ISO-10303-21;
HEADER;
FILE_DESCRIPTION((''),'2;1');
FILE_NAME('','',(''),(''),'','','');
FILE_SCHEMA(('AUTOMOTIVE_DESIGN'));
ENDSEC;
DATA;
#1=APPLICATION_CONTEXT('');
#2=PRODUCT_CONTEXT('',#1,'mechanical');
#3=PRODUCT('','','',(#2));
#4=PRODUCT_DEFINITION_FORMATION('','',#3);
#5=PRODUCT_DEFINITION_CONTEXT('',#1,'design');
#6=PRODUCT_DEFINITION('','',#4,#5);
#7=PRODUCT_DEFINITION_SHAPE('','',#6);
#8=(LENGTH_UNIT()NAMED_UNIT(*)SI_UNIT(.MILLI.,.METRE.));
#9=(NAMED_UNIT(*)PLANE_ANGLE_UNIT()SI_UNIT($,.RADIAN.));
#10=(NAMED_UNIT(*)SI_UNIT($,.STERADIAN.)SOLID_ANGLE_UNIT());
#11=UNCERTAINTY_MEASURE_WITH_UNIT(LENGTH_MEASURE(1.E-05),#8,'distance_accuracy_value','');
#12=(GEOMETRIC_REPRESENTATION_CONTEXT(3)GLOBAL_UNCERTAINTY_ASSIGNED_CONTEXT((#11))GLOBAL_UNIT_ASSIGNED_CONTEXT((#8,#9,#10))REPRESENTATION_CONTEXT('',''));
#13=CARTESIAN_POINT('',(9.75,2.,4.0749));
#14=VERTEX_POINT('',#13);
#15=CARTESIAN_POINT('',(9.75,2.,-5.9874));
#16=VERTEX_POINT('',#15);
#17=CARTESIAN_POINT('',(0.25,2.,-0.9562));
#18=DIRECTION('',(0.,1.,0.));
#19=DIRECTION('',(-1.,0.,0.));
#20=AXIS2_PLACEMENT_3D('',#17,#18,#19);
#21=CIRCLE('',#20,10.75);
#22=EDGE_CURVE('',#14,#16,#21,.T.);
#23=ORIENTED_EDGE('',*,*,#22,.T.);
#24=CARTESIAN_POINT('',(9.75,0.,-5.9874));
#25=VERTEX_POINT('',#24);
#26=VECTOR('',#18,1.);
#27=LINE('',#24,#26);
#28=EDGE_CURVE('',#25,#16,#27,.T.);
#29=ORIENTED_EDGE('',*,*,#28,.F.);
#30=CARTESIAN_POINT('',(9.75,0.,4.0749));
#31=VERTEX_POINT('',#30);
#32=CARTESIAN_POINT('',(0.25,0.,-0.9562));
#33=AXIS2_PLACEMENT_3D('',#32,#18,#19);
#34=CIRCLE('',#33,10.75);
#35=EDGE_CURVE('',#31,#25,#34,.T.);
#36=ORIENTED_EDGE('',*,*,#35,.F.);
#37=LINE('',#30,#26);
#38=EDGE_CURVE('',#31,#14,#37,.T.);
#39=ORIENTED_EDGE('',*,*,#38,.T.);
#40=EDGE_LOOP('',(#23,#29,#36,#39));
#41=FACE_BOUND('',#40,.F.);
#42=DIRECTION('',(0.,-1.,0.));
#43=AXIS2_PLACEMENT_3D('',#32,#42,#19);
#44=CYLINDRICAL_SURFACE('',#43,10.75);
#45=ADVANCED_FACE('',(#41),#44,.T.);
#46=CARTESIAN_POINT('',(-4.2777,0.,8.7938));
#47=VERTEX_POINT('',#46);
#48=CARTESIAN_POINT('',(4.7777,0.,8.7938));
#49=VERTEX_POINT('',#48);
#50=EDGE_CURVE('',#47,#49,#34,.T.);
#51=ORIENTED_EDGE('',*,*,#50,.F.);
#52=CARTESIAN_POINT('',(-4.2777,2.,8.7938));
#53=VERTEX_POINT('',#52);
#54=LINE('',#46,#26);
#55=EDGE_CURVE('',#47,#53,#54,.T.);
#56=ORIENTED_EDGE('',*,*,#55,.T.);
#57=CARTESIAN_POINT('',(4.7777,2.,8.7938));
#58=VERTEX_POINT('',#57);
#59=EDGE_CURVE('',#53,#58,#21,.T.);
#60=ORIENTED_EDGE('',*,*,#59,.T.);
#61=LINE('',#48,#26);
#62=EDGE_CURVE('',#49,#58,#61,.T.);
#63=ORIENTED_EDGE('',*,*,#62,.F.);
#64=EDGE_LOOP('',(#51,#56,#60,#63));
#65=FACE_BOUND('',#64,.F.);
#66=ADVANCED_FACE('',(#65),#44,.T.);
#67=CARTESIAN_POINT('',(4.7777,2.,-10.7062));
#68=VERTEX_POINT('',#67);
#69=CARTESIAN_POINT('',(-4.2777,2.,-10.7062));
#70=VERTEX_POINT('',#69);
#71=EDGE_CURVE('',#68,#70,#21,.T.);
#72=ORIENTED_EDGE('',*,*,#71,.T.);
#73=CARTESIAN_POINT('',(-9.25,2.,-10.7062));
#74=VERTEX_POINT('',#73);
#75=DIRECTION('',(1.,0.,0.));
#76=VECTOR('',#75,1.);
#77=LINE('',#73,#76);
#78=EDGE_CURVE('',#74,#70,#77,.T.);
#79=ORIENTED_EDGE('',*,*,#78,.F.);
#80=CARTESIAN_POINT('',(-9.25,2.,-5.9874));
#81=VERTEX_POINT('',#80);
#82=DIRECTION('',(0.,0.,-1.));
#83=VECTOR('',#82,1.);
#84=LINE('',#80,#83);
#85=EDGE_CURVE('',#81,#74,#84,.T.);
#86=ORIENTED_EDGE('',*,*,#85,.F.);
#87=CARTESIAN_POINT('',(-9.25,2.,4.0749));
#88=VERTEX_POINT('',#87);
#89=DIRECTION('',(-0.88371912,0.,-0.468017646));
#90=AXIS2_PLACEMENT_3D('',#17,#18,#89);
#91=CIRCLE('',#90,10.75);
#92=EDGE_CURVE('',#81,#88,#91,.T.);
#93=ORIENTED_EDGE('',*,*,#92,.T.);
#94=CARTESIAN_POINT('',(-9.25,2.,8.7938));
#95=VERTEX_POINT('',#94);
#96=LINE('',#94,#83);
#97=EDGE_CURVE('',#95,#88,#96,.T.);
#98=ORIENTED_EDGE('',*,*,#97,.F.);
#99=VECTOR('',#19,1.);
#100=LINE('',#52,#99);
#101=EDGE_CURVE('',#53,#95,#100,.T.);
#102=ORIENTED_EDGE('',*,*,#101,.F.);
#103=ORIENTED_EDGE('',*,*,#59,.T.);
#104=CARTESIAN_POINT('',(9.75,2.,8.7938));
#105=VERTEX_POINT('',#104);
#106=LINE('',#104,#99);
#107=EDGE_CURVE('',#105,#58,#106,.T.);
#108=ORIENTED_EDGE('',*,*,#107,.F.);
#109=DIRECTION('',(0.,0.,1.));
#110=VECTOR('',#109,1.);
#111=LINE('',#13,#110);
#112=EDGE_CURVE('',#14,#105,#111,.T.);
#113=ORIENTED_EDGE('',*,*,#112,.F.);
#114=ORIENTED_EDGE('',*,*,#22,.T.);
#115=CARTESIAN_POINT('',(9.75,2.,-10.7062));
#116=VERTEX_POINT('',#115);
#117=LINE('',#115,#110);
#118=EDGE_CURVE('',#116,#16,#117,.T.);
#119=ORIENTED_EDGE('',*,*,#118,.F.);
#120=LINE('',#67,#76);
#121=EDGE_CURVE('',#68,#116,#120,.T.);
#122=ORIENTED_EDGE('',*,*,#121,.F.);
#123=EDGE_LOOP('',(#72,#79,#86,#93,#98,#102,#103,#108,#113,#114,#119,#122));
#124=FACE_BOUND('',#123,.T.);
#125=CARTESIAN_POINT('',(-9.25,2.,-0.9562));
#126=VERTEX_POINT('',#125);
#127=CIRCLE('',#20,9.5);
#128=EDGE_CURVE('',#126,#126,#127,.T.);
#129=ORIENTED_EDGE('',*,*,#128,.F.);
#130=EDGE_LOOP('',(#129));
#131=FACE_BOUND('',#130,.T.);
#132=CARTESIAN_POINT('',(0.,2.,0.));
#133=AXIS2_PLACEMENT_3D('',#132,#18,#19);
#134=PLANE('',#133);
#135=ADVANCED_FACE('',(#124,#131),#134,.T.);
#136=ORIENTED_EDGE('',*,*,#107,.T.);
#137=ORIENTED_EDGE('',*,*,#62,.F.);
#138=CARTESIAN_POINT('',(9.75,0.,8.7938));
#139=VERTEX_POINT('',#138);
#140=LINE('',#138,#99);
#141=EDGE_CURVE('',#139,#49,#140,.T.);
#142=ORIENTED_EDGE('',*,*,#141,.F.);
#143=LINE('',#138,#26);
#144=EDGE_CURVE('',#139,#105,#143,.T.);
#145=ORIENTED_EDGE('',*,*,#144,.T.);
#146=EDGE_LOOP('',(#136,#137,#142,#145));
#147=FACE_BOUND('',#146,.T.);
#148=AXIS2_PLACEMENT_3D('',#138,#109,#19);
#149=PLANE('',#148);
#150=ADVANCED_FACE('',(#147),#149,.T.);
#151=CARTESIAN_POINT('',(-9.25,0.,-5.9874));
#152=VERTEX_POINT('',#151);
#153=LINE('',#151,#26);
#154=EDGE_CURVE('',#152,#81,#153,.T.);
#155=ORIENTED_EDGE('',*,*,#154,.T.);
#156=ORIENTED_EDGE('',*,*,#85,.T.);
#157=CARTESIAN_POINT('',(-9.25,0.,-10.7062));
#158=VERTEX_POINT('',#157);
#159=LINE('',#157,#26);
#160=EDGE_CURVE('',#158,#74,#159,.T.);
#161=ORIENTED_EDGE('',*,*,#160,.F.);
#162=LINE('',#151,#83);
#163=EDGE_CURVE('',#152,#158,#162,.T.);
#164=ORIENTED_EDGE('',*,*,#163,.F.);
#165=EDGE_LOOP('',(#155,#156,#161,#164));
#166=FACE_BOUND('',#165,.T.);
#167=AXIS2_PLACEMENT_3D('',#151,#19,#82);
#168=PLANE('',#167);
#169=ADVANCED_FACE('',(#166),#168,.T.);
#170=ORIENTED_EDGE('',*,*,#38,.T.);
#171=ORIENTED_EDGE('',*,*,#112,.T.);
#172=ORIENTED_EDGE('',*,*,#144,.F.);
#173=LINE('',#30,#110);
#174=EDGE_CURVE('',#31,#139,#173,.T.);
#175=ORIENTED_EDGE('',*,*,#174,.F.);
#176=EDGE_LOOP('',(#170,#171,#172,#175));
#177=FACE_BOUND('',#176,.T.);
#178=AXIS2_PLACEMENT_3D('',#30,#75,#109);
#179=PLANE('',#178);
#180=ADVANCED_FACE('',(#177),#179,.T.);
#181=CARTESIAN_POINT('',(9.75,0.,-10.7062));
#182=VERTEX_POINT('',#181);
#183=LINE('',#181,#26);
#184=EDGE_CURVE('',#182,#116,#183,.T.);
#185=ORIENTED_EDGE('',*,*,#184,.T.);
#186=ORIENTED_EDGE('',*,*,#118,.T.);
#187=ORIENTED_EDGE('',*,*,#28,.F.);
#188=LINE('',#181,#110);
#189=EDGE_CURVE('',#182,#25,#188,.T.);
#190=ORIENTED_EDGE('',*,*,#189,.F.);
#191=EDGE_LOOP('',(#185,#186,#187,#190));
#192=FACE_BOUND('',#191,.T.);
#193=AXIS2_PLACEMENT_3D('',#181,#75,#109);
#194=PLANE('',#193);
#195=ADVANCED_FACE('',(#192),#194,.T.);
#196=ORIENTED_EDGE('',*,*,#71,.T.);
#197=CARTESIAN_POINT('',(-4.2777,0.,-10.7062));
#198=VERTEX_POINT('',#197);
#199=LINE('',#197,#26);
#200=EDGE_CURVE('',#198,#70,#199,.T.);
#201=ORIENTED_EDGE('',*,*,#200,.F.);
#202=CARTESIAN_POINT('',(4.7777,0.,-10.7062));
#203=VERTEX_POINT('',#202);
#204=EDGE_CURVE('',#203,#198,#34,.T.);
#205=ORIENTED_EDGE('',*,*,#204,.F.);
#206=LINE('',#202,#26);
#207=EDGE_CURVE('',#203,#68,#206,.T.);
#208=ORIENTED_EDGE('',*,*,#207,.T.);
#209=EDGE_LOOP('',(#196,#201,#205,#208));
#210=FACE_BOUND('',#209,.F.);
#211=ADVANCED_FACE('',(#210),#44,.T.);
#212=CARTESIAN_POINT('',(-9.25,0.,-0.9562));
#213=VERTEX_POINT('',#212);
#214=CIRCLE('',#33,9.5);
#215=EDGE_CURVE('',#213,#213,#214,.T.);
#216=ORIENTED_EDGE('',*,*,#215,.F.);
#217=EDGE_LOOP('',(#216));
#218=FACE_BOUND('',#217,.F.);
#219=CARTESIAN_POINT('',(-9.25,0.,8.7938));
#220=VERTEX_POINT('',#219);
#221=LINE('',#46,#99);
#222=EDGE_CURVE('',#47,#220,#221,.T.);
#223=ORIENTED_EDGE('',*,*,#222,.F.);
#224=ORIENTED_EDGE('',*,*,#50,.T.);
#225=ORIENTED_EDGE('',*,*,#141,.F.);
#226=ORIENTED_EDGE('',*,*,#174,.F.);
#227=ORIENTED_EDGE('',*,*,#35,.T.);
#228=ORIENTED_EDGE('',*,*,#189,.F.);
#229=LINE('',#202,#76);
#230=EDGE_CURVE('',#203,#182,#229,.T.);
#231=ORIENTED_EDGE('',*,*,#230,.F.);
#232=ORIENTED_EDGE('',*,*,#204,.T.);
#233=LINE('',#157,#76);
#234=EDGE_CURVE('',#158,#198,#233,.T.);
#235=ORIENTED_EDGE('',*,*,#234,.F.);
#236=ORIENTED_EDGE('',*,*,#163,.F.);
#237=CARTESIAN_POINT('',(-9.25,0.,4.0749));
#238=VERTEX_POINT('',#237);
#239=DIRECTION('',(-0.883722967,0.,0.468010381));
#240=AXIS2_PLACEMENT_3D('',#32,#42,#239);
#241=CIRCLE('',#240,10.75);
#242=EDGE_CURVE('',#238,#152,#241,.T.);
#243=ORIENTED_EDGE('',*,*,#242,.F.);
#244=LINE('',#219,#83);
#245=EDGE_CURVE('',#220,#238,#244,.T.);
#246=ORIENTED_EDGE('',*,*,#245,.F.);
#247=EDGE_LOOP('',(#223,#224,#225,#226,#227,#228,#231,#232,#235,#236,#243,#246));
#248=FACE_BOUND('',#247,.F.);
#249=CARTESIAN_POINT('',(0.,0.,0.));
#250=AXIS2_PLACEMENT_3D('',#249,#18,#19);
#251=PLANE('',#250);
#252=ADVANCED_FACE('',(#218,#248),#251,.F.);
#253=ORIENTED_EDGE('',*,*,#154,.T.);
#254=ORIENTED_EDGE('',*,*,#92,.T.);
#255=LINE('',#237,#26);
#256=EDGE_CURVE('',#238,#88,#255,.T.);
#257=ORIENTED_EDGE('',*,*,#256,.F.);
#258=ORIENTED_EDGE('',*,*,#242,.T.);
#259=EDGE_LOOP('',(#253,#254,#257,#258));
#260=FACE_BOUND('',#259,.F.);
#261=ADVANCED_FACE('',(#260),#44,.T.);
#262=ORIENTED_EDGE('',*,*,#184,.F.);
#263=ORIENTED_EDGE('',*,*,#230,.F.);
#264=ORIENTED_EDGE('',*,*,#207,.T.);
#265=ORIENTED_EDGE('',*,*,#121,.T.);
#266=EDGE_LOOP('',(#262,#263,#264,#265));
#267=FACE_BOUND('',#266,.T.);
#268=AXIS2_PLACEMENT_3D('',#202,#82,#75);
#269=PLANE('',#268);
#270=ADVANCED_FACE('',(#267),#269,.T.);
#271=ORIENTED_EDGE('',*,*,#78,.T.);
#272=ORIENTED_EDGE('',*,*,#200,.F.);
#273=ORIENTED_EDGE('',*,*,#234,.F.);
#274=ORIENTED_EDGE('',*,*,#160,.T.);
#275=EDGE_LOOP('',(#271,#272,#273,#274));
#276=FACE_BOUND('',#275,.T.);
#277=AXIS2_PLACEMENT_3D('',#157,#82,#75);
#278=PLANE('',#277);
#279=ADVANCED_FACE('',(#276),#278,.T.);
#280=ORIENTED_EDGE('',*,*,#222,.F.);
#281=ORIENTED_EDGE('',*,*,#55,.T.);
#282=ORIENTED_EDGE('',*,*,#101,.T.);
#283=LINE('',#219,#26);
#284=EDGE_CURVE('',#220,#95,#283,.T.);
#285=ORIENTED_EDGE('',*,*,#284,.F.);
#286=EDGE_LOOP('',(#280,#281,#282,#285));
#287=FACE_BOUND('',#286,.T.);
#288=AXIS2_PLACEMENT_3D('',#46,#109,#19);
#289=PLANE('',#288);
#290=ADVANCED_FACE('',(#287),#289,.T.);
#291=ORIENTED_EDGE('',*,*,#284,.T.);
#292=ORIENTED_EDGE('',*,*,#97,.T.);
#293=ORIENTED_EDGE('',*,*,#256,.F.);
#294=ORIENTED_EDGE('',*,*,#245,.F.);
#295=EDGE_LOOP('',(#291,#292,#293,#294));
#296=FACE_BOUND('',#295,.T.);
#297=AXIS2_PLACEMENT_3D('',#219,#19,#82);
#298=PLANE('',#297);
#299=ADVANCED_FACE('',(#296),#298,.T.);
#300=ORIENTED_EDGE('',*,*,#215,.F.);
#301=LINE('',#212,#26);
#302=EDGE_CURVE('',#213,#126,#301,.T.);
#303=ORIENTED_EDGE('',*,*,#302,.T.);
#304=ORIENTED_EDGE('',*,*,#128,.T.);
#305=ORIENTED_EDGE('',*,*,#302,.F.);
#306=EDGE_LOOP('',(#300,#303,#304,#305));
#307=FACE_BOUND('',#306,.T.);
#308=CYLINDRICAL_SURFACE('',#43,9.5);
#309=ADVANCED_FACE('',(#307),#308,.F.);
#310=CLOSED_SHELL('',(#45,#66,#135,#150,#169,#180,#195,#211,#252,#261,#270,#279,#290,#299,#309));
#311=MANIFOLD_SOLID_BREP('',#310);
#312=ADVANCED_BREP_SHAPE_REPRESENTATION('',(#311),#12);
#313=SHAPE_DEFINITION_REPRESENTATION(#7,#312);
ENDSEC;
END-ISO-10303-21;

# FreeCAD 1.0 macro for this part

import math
import FreeCAD as App
import Part
import Sketcher
from FreeCAD import Vector

doc = App.newDocument("Part")
body = doc.addObject("PartDesign::Body", "Body")

# Sketch on XZ plane
sketch1 = doc.addObject("Sketcher::SketchObject", "Sketch")
body.addObject(sketch1)
sketch1.AttachmentSupport = (doc.XZ_Plane, [""])
sketch1.MapMode = "FlatFace"
sketch1.addGeometry([
    Part.LineSegment(Vector(-4.3, -10.7, 0), Vector(-9.2, -10.7, 0)),  # 0
    Part.LineSegment(Vector(-9.2, -10.7, 0), Vector(-9.2, -6, 0)),  # 1
    Part.ArcOfCircle(Part.Circle(Vector(0.2, -1, 0), Vector(0, 0, 1), 10.8), math.radians(152), math.radians(208)),  # 2
    Part.LineSegment(Vector(-9.2, 4.1, 0), Vector(-9.2, 8.8, 0)),  # 3
    Part.LineSegment(Vector(-9.2, 8.8, 0), Vector(-4.3, 8.8, 0)),  # 4
    Part.ArcOfCircle(Part.Circle(Vector(0.2, -1, 0), Vector(0, 0, 1), 10.8), math.radians(65), math.radians(115)),  # 5
    Part.LineSegment(Vector(4.8, 8.8, 0), Vector(9.8, 8.8, 0)),  # 6
    Part.LineSegment(Vector(9.8, 8.8, 0), Vector(9.8, 4.1, 0)),  # 7
    Part.ArcOfCircle(Part.Circle(Vector(0.2, -1, 0), Vector(0, 0, 1), 10.8), math.radians(-28), math.radians(28)),  # 8
    Part.LineSegment(Vector(9.8, -6, 0), Vector(9.8, -10.7, 0)),  # 9
    Part.LineSegment(Vector(9.8, -10.7, 0), Vector(4.8, -10.7, 0)),  # 10
    Part.ArcOfCircle(Part.Circle(Vector(0.2, -1, 0), Vector(0, 0, 1), 10.8), math.radians(-115), math.radians(-65)),  # 11
    Part.Circle(Vector(0.2, -1, 0), Vector(0, 0, 1), 9.5),  # 12
], False)
sketch1.addConstraint([
    Sketcher.Constraint("Coincident", 0, 2, 1, 1),
    Sketcher.Constraint("Coincident", 1, 2, 2, 2),
    Sketcher.Constraint("Coincident", 2, 1, 3, 1),
    Sketcher.Constraint("Coincident", 3, 2, 4, 1),
    Sketcher.Constraint("Coincident", 4, 2, 5, 2),
    Sketcher.Constraint("Coincident", 5, 1, 6, 1),
    Sketcher.Constraint("Coincident", 6, 2, 7, 1),
    Sketcher.Constraint("Coincident", 7, 2, 8, 2),
    Sketcher.Constraint("Coincident", 8, 1, 9, 1),
    Sketcher.Constraint("Coincident", 9, 2, 10, 1),
    Sketcher.Constraint("Coincident", 10, 2, 11, 2),
    Sketcher.Constraint("Coincident", 11, 1, 0, 1),
    Sketcher.Constraint("Horizontal", 0),
    Sketcher.Constraint("Vertical", 1),
    Sketcher.Constraint("Vertical", 3),
    Sketcher.Constraint("Horizontal", 4),
    Sketcher.Constraint("Horizontal", 6),
    Sketcher.Constraint("Vertical", 7),
    Sketcher.Constraint("Vertical", 9),
    Sketcher.Constraint("Horizontal", 10),
    Sketcher.Constraint("Coincident", 5, 3, 2, 3),
    Sketcher.Constraint("Coincident", 8, 3, 2, 3),
    Sketcher.Constraint("Coincident", 11, 3, 2, 3),
    Sketcher.Constraint("Coincident", 12, 3, 2, 3),
    Sketcher.Constraint("Equal", 2, 5),
    Sketcher.Constraint("Equal", 5, 8),
    Sketcher.Constraint("Equal", 8, 11),
    Sketcher.Constraint("Horizontal", 4, 2, 5, 1),
    Sketcher.Constraint("Horizontal", 2, 1, 7, 2),
    Sketcher.Constraint("Horizontal", 1, 2, 8, 1),
    Sketcher.Constraint("Horizontal", 0, 2, 9, 2),
    Sketcher.Constraint("Vertical", 1, 2, 2, 1),
    Sketcher.Constraint("Vertical", 5, 1, 10, 2),
    Sketcher.Constraint("Diameter", 12, 19.0),
    Sketcher.Constraint("Radius", 2, 10.75),
    Sketcher.Constraint("DistanceX", 0, 2, 2, 3, 9.5),
    Sketcher.Constraint("DistanceY", 3, 1, 3, 2, 4.719),
    Sketcher.Constraint("DistanceX", -1, 1, 2, 3, 0.25),
    Sketcher.Constraint("DistanceY", -1, 1, 2, 1, 4.075),
])
pad1 = doc.addObject("PartDesign::Pad", "Pad")
body.addObject(pad1)
pad1.Profile = sketch1
pad1.Length = 2
pad1.Reversed = True

doc.recompute()
